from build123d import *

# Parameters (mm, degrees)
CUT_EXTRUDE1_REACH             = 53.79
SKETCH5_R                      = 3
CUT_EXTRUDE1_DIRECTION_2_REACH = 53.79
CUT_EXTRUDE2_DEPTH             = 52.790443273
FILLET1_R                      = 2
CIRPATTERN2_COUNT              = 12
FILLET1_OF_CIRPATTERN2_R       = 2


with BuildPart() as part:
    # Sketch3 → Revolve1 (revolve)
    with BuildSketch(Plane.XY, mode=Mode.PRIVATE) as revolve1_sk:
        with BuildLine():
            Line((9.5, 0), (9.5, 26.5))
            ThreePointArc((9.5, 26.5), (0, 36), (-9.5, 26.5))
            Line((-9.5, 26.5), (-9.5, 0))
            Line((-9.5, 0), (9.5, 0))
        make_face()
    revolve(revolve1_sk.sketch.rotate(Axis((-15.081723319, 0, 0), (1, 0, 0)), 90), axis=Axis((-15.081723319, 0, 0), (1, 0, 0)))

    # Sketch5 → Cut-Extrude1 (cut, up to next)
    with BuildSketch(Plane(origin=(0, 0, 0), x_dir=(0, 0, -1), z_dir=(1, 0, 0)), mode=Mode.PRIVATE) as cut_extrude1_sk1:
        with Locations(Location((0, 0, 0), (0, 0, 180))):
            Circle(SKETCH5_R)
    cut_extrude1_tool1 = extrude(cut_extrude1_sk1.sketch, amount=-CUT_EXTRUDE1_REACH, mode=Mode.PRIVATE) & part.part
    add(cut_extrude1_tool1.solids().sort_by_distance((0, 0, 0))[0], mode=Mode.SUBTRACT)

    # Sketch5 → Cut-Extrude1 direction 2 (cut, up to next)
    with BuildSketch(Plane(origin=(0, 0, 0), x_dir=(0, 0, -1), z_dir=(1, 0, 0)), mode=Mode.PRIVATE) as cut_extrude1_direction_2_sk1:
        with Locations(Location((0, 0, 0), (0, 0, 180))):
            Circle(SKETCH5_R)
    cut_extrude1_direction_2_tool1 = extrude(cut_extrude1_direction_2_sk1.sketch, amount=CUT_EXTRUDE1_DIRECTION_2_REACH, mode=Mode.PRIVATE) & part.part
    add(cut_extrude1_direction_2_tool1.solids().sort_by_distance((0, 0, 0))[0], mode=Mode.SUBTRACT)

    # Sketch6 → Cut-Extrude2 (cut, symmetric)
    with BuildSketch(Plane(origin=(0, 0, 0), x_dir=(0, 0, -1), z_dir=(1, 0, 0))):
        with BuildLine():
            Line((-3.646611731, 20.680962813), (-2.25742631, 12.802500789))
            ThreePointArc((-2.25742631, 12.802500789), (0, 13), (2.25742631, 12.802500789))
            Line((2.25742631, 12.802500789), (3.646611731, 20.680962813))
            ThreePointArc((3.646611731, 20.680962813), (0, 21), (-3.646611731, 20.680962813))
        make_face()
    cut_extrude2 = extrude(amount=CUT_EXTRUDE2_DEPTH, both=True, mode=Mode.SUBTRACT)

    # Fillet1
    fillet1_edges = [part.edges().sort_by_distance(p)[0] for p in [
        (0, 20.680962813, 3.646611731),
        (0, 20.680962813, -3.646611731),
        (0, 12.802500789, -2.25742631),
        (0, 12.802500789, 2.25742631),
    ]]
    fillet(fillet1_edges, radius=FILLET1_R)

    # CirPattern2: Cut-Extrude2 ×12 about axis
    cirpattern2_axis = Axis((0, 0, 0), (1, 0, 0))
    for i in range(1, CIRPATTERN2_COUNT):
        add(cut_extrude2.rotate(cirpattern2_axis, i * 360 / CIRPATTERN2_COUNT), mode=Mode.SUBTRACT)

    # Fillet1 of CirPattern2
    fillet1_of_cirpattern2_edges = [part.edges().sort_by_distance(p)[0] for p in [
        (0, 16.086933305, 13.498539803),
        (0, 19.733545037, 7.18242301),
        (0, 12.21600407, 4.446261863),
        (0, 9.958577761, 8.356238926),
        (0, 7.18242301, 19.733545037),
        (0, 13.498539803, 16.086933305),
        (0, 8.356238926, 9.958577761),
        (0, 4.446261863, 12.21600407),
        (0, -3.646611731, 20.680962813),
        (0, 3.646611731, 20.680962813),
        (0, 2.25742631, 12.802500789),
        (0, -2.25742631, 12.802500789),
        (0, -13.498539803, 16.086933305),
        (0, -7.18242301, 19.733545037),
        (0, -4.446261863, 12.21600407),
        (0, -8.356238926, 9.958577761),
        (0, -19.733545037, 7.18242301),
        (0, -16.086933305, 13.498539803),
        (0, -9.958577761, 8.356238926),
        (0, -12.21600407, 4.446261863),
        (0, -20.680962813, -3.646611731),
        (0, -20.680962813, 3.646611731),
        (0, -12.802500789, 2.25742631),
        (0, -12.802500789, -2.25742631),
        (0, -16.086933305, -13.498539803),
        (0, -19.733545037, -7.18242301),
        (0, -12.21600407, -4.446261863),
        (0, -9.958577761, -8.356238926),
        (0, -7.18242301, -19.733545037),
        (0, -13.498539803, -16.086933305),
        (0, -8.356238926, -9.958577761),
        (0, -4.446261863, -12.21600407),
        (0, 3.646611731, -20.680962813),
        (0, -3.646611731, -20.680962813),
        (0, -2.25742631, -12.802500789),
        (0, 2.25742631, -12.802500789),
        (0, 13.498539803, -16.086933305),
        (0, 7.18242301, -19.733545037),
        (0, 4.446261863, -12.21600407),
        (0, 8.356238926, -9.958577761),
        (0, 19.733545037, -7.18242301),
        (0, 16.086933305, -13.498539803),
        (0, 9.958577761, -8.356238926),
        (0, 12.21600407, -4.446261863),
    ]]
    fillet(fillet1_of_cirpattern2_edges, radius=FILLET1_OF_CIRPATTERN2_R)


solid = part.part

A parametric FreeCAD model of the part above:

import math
import FreeCAD as App
import Part
import Sketcher
Q = App.Units.Quantity


def edges_at(feature, points):
    """Names of the edges that pass closest to the given points."""
    edges = feature.Shape.Edges
    near = lambda p: min(range(len(edges)), key=lambda i: edges[i].distToShape(Part.Vertex(*p))[0])
    return sorted({f"Edge{near(p) + 1}" for p in points})

doc = App.newDocument("Part")
body = doc.addObject("PartDesign::Body", "Body")

# Sketch on XY plane
sketch1 = body.newObject("Sketcher::SketchObject", "Sketch")
sketch1.AttachmentSupport = (doc.getObject("XY_Plane"), [""])
sketch1.MapMode = "FlatFace"
sketch1.addGeometry([
    Part.LineSegment(App.Vector(9.5, 0, 0), App.Vector(9.5, 26.5, 0)),
    Part.ArcOfCircle(Part.Circle(App.Vector(0, 26.5, 0), App.Vector(0, 0, 1), 9.5), math.radians(0), math.radians(180)),
    Part.LineSegment(App.Vector(-9.5, 26.5, 0), App.Vector(-9.5, 0, 0)),
    Part.LineSegment(App.Vector(-9.5, 0, 0), App.Vector(9.5, 0, 0)),
], False)
sketch1.addConstraint([
    Sketcher.Constraint("Tangent", 0, 2, 1, 1),
    Sketcher.Constraint("Tangent", 1, 2, 2, 1),
    Sketcher.Constraint("Coincident", 2, 2, 3, 1),
    Sketcher.Constraint("Coincident", 3, 2, 0, 1),
    Sketcher.Constraint("Vertical", 0),
    Sketcher.Constraint("Vertical", 2),
    Sketcher.Constraint("Horizontal", 3),
    Sketcher.Constraint("Symmetric", 2, 2, 3, 2, -1, 1),
    Sketcher.Constraint("Radius", 1, 9.5),
    Sketcher.Constraint("DistanceY", 0, 1, 0, 2, 26.5),
])
revolution = body.newObject("PartDesign::Revolution", "Revolution")
revolution.Profile = sketch1
revolution.ReferenceAxis = (sketch1, ["H_Axis"])
revolution.Angle = 360

# Sketch on YZ plane
sketch2 = body.newObject("Sketcher::SketchObject", "Sketch001")
sketch2.AttachmentSupport = (doc.getObject("YZ_Plane"), [""])
sketch2.MapMode = "FlatFace"
sketch2.addGeometry(Part.Circle(App.Vector(0, 0, 0), App.Vector(0, 0, 1), 3), False)
sketch2.addConstraint([
    Sketcher.Constraint("Coincident", 0, 3, -1, 1),
    Sketcher.Constraint("Diameter", 0, 6.0),
])
pocket1 = body.newObject("PartDesign::Pocket", "Pocket")
pocket1.Profile = sketch2
pocket1.Type = "UpToFirst"

# Sketch on YZ plane
sketch3 = body.newObject("Sketcher::SketchObject", "Sketch002")
sketch3.AttachmentSupport = (doc.getObject("YZ_Plane"), [""])
sketch3.MapMode = "FlatFace"
sketch3.addGeometry(Part.Circle(App.Vector(0, 0, 0), App.Vector(0, 0, 1), 3), False)
sketch3.addConstraint([
    Sketcher.Constraint("Coincident", 0, 3, -1, 1),
    Sketcher.Constraint("Diameter", 0, 6.0),
])
pocket2 = body.newObject("PartDesign::Pocket", "Pocket001")
pocket2.Profile = sketch3
pocket2.Type = "UpToFirst"
pocket2.Reversed = True

# Sketch on YZ plane
sketch4 = body.newObject("Sketcher::SketchObject", "Sketch003")
sketch4.AttachmentSupport = (doc.getObject("YZ_Plane"), [""])
sketch4.MapMode = "FlatFace"
sketch4.addGeometry([
    Part.LineSegment(App.Vector(20.680963, 3.646612, 0), App.Vector(12.802501, 2.257426, 0)),
    Part.ArcOfCircle(Part.Circle(App.Vector(0, 0, 0), App.Vector(0, 0, 1), 13), math.radians(-10), math.radians(10)),
    Part.LineSegment(App.Vector(12.802501, -2.257426, 0), App.Vector(20.680963, -3.646612, 0)),
    Part.ArcOfCircle(Part.Circle(App.Vector(0, 0, 0), App.Vector(0, 0, 1), 21), math.radians(-10), math.radians(10)),
], False)
sketch4.addConstraint([
    Sketcher.Constraint("Coincident", 0, 2, 1, 2),
    Sketcher.Constraint("Coincident", 1, 1, 2, 1),
    Sketcher.Constraint("Coincident", 2, 2, 3, 1),
    Sketcher.Constraint("Coincident", 3, 2, 0, 1),
    Sketcher.Constraint("Coincident", 1, 3, -1, 1),
    Sketcher.Constraint("Coincident", 3, 3, -1, 1),
    Sketcher.Constraint("Vertical", 0, 2, 1, 1),
    Sketcher.Constraint("Vertical", 2, 2, 3, 2),
    Sketcher.Constraint("Radius", 1, 13.0),
    Sketcher.Constraint("Radius", 3, 21.0),
    Sketcher.Constraint("Angle", 0, Q("-170 deg")),
    Sketcher.Constraint("DistanceX", -1, 1, 0, 2, 12.802501),
])
pocket3 = body.newObject("PartDesign::Pocket", "Pocket002")
pocket3.Profile = sketch4
pocket3.Length = 105.580887
pocket3.Midplane = True
doc.recompute()

fillet = body.newObject("PartDesign::Fillet", "Fillet")
fillet.Base = (pocket3, edges_at(pocket3, [
    (0, 20.681, 3.647),
    (0, 20.681, -3.647),
    (0, 12.803, -2.257),
    (0, 12.803, 2.257),
]))
fillet.Radius = 2
doc.recompute()

polarpattern = body.newObject("PartDesign::PolarPattern", "PolarPattern")
polarpattern.Originals = [pocket3]
polarpattern.Axis = (doc.getObject("X_Axis"), [""])
polarpattern.Angle = 360
polarpattern.Occurrences = 12
body.Tip = polarpattern
doc.recompute()

fillet2 = body.newObject("PartDesign::Fillet", "Fillet001")
fillet2.Base = (polarpattern, edges_at(polarpattern, [
    (0, 16.087, 13.499),
    (0, 19.734, 7.182),
    (0, 12.216, 4.446),
    (0, 9.959, 8.356),
    (0, 7.182, 19.734),
    (0, 13.499, 16.087),
    (0, 8.356, 9.959),
    (0, 4.446, 12.216),
    (0, -3.647, 20.681),
    (0, 3.647, 20.681),
    (0, 2.257, 12.803),
    (0, -2.257, 12.803),
    (0, -13.499, 16.087),
    (0, -7.182, 19.734),
    (0, -4.446, 12.216),
    (0, -8.356, 9.959),
    (0, -19.734, 7.182),
    (0, -16.087, 13.499),
    (0, -9.959, 8.356),
    (0, -12.216, 4.446),
    (0, -20.681, -3.647),
    (0, -20.681, 3.647),
    (0, -12.803, 2.257),
    (0, -12.803, -2.257),
    (0, -16.087, -13.499),
    (0, -19.734, -7.182),
    (0, -12.216, -4.446),
    (0, -9.959, -8.356),
    (0, -7.182, -19.734),
    (0, -13.499, -16.087),
    (0, -8.356, -9.959),
    (0, -4.446, -12.216),
    (0, 3.647, -20.681),
    (0, -3.647, -20.681),
    (0, -2.257, -12.803),
    (0, 2.257, -12.803),
    (0, 13.499, -16.087),
    (0, 7.182, -19.734),
    (0, 4.446, -12.216),
    (0, 8.356, -9.959),
    (0, 19.734, -7.182),
    (0, 16.087, -13.499),
    (0, 9.959, -8.356),
    (0, 12.216, -4.446),
]))
fillet2.Radius = 2

doc.recompute()
